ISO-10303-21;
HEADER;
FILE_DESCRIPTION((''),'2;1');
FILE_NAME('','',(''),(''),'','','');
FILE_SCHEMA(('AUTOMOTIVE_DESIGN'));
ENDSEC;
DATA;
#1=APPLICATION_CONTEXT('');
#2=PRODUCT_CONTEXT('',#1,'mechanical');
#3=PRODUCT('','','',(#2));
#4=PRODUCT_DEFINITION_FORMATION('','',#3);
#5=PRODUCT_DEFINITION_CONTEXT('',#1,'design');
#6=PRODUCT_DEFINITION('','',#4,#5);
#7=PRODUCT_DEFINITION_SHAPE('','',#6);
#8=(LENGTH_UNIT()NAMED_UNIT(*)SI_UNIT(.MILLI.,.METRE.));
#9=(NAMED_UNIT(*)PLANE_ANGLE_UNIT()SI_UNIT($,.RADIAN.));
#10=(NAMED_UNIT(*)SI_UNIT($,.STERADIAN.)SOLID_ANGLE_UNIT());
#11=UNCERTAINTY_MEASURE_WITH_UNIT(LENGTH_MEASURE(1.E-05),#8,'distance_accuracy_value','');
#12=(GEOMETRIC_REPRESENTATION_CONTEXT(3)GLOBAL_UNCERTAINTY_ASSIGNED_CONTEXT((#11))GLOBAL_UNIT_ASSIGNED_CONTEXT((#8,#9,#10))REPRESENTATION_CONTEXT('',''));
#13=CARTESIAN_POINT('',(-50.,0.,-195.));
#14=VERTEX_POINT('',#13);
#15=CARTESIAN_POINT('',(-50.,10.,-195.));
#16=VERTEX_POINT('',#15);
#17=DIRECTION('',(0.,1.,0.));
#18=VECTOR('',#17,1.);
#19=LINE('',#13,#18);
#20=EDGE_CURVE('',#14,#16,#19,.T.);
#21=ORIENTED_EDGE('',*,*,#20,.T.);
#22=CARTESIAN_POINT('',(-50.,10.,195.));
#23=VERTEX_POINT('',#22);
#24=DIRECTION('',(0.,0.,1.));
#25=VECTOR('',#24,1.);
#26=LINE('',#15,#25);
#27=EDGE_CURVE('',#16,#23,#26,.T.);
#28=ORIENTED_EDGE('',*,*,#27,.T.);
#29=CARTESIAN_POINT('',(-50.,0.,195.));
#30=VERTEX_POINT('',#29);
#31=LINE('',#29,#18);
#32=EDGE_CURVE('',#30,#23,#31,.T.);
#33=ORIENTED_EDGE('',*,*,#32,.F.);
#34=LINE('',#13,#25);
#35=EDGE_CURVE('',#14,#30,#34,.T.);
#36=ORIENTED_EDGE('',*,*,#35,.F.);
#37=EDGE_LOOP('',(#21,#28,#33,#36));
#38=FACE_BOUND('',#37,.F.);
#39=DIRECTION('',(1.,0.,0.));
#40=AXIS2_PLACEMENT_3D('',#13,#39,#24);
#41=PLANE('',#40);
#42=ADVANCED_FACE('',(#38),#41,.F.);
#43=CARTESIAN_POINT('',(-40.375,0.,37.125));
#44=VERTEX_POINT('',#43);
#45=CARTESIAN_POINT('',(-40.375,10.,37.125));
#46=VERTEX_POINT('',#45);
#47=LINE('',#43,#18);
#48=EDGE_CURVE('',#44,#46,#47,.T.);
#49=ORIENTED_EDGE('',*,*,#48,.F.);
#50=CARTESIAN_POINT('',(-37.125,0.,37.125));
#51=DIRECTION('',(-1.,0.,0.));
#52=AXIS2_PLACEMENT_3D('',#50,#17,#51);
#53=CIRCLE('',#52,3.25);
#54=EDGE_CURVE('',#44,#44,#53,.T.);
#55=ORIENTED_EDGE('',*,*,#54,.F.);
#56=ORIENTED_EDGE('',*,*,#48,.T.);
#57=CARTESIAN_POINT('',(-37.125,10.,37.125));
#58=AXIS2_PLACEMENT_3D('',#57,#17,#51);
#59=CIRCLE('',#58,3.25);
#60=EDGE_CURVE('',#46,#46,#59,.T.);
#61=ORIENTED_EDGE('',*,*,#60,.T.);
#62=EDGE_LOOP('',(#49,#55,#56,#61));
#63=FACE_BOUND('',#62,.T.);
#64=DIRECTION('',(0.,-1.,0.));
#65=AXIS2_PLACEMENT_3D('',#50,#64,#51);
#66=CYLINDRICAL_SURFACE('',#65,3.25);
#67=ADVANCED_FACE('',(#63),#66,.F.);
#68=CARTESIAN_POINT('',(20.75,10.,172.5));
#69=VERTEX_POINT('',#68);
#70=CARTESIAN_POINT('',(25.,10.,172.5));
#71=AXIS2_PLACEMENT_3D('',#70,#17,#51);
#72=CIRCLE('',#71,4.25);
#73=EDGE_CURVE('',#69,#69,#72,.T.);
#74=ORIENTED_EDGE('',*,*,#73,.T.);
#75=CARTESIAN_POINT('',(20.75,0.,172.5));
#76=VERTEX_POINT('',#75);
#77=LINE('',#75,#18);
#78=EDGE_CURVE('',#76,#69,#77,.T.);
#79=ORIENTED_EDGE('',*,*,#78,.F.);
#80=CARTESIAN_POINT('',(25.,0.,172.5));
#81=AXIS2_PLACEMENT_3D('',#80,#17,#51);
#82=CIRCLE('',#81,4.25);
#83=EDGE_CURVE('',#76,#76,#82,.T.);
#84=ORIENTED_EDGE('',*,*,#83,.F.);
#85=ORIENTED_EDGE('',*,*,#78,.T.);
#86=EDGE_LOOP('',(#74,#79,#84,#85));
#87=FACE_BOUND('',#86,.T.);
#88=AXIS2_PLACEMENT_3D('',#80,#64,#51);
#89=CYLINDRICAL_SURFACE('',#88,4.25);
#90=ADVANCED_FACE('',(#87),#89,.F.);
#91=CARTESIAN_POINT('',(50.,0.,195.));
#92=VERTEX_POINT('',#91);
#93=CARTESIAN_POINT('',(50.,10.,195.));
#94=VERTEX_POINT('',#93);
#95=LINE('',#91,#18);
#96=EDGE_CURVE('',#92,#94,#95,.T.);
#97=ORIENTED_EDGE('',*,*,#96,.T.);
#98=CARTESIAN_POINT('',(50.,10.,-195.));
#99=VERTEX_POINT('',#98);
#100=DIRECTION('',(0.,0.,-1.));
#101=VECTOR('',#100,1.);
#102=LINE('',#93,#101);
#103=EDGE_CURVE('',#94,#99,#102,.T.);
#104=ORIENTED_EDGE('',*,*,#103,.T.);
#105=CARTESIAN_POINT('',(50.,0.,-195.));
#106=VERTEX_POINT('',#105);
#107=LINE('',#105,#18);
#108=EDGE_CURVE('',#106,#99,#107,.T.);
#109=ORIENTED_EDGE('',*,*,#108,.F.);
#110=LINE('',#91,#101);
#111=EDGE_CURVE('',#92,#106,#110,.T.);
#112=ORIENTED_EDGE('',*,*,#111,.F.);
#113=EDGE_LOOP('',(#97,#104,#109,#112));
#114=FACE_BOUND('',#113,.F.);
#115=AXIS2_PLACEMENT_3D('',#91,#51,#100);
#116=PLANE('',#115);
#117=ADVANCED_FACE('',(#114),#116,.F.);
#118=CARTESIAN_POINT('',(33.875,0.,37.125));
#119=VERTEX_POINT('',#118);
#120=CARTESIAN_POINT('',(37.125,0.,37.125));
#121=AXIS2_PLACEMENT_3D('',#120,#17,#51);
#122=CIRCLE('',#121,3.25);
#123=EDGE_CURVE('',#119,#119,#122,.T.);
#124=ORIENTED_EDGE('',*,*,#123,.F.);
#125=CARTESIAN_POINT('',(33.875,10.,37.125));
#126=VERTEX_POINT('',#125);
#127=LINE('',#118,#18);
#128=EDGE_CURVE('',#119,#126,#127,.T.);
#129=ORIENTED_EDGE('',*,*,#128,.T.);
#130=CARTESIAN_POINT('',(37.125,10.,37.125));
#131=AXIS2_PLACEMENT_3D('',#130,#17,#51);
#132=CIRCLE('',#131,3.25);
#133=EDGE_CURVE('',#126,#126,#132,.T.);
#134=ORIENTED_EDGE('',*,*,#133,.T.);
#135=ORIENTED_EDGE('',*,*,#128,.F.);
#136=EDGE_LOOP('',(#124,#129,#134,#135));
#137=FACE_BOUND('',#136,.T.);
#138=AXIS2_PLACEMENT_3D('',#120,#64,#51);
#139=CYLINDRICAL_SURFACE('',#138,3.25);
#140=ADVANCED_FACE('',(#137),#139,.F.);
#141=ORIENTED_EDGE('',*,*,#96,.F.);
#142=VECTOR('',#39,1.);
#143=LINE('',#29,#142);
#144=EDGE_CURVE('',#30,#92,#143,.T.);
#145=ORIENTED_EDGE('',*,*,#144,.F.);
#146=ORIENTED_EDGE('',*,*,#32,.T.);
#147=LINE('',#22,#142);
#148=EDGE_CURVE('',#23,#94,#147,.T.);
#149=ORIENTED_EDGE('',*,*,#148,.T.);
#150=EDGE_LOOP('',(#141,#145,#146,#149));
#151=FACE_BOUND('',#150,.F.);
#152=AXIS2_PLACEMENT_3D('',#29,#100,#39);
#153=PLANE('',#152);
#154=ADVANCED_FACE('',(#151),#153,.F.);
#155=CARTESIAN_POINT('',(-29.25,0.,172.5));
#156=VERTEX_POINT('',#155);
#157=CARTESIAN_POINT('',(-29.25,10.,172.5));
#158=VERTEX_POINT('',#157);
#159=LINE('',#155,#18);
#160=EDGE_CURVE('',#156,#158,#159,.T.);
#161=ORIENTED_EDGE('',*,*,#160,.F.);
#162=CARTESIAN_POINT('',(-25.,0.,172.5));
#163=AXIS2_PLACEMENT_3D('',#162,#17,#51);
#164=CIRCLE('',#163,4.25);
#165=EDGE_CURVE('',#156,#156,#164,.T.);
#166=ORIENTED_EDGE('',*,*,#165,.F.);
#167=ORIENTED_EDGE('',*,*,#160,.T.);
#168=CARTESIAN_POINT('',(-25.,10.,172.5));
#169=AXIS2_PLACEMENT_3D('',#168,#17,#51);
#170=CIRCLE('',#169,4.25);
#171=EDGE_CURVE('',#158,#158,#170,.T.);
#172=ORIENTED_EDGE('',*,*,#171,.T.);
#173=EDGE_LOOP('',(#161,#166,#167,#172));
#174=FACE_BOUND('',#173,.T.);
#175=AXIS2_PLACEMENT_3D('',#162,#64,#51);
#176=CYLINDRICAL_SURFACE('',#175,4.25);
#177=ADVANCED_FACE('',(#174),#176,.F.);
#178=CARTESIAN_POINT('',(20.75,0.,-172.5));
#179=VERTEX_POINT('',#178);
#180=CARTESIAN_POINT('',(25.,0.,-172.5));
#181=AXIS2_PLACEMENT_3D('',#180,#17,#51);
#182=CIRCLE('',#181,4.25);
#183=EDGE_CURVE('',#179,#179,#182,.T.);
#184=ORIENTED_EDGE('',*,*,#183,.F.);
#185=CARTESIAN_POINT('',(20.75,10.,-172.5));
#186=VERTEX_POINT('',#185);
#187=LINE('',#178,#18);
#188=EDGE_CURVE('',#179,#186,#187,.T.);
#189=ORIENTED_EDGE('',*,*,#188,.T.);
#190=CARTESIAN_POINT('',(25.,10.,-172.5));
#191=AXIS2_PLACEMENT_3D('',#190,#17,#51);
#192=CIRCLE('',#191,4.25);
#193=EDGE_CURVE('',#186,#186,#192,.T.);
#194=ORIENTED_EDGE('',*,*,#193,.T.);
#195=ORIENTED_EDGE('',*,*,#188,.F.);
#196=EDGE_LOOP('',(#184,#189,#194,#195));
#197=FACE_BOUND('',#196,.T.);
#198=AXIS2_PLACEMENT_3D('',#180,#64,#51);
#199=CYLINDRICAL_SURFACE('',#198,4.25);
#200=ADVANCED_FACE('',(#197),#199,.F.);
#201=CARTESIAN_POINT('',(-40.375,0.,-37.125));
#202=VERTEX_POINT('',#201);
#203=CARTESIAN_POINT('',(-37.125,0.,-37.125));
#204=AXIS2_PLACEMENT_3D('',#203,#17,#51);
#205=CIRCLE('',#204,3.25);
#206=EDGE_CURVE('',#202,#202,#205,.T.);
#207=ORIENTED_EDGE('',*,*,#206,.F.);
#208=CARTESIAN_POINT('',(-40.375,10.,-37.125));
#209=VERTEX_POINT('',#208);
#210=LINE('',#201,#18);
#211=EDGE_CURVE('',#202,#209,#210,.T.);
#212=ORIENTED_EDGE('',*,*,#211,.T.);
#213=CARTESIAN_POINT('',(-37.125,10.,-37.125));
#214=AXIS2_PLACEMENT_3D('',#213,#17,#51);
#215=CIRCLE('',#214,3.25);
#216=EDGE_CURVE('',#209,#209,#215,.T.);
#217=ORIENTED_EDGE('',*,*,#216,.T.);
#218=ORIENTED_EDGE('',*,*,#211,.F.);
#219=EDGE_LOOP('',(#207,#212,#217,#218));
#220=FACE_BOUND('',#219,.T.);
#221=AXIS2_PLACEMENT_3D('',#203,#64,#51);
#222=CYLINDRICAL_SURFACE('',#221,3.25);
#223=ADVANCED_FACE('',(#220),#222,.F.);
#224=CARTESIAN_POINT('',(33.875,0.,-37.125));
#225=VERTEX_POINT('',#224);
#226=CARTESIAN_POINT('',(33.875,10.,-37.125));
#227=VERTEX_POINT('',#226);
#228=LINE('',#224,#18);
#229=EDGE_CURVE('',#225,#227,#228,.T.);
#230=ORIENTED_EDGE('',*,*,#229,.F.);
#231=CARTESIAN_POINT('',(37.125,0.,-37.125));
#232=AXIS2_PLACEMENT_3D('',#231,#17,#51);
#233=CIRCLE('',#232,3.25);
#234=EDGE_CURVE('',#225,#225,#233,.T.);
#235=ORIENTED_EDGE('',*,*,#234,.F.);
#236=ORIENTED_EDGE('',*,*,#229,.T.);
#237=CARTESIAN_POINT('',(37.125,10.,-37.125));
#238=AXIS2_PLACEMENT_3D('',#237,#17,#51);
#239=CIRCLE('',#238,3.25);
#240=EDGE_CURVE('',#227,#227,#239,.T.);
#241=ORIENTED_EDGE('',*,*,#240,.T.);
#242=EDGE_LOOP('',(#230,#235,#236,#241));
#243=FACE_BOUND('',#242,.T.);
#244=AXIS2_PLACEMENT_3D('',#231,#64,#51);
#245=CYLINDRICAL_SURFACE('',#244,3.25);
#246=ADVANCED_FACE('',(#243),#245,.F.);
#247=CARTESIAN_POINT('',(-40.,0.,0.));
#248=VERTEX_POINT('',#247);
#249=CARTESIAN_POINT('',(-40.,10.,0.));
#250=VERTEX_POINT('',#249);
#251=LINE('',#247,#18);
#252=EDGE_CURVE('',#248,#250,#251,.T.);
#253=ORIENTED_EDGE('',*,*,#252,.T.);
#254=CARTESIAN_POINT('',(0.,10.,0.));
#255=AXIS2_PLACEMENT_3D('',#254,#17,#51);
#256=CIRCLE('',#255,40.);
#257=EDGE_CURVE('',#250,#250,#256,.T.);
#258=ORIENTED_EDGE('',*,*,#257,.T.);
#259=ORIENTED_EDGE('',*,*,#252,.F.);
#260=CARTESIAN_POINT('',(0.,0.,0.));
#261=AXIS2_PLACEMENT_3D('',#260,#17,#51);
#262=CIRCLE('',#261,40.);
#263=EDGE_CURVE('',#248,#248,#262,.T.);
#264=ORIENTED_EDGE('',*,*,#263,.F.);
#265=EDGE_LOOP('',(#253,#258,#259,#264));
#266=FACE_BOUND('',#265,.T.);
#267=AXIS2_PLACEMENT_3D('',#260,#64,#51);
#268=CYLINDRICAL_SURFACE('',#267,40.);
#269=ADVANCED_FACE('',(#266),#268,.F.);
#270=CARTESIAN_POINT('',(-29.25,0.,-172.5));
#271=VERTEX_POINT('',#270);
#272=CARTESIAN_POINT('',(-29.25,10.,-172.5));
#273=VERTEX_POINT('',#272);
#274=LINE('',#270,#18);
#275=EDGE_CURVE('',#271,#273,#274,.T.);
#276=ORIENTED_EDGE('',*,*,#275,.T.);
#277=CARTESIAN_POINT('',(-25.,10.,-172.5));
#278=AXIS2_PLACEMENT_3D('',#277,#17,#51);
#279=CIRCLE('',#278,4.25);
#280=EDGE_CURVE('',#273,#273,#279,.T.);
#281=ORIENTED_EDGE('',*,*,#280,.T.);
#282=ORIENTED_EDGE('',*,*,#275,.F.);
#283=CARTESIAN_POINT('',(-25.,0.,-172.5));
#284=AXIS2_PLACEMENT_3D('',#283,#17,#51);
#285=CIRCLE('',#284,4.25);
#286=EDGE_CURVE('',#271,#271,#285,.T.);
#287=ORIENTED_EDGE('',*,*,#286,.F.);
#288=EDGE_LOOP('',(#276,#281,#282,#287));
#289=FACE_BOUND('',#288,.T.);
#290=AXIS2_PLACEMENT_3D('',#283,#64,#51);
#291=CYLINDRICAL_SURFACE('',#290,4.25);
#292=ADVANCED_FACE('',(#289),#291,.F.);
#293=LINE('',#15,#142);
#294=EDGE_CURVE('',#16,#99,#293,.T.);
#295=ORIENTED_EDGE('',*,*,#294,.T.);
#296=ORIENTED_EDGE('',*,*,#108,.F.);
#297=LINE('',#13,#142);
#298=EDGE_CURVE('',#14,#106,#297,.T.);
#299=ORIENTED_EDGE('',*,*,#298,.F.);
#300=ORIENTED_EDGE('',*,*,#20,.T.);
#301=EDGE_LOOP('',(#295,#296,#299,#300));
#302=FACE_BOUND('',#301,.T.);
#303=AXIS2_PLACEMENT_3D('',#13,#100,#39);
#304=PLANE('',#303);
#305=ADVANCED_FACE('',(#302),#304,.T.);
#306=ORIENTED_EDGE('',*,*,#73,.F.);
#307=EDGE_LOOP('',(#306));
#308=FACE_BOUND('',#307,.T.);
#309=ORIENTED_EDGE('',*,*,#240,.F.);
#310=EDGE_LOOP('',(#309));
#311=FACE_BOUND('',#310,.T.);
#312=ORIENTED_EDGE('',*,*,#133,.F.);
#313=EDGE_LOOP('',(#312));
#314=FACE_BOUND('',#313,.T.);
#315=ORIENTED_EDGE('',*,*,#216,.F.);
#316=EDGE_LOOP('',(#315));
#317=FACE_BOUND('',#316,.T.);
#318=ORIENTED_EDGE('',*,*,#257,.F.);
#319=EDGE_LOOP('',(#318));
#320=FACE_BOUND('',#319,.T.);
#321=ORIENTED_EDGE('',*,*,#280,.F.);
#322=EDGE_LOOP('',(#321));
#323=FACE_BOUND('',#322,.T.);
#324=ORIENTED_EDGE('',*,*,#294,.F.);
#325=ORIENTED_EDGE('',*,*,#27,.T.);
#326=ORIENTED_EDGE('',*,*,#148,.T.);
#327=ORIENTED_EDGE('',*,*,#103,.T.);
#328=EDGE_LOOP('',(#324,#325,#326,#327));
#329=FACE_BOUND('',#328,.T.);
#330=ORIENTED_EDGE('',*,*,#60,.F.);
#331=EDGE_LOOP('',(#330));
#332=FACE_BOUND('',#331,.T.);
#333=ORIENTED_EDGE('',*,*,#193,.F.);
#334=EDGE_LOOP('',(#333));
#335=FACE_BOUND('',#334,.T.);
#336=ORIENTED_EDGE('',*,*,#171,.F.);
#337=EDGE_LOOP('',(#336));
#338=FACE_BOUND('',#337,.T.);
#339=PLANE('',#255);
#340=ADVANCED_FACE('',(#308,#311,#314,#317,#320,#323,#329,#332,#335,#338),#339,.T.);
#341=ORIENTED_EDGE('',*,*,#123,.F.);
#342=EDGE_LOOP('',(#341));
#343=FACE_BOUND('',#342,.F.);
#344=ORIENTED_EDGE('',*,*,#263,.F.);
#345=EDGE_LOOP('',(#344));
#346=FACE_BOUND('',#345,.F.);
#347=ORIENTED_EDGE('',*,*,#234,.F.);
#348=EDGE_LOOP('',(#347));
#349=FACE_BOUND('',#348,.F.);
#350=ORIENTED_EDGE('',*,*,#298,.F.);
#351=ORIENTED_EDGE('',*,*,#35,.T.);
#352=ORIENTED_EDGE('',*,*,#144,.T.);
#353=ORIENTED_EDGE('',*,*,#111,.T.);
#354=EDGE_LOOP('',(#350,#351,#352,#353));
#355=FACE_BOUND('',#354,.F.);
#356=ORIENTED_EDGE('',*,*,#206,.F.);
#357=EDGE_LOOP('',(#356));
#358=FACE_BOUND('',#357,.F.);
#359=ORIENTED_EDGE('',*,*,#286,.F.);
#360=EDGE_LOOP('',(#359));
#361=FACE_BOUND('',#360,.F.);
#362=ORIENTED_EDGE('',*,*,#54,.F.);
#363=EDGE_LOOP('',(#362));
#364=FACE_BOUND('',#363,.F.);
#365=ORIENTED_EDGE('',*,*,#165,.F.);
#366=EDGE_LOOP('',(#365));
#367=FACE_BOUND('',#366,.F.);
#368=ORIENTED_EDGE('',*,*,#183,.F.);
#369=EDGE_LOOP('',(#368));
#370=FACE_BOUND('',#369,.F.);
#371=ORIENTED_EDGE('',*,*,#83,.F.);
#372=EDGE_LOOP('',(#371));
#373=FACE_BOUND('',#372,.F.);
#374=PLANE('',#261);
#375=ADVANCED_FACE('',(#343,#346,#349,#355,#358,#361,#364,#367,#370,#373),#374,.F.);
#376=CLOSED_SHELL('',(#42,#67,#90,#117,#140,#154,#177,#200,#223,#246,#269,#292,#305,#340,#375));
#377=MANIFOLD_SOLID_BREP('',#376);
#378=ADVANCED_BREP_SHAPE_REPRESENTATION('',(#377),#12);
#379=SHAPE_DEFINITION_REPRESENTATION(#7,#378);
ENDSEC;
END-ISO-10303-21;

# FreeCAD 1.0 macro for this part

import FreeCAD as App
import Part
import Sketcher
Q = App.Units.Quantity


def add_polygon(sketch, points):
    """Adds a closed chain of lines whose ends are joined by coincident constraints."""
    first, n = sketch.GeometryCount, len(points)
    for a, b in zip(points, points[1:] + points[:1]):
        sketch.addGeometry(Part.LineSegment(App.Vector(*a, 0), App.Vector(*b, 0)), False)
    for i in range(n):
        sketch.addConstraint(Sketcher.Constraint("Coincident", first + i, 2, first + (i + 1) % n, 1))

doc = App.newDocument("Part")
body = doc.addObject("PartDesign::Body", "Body")

sketch1 = body.newObject("Sketcher::SketchObject", "Sketch")
sketch1.AttachmentSupport = (doc.getObject("XZ_Plane"), [""])
sketch1.MapMode = "FlatFace"
add_polygon(sketch1, [(-50, 195), (50, 195), (50, -195), (-50, -195)])
sketch1.addGeometry(Part.Circle(App.Vector(25, -172.5, 0), App.Vector(0, 0, 1), 4.2), False)
sketch1.addGeometry(Part.Circle(App.Vector(37.1, -37.1, 0), App.Vector(0, 0, 1), 3.2), False)
sketch1.addGeometry(Part.Circle(App.Vector(-25, -172.5, 0), App.Vector(0, 0, 1), 4.2), False)
sketch1.addGeometry(Part.Circle(App.Vector(-37.1, -37.1, 0), App.Vector(0, 0, 1), 3.2), False)
sketch1.addGeometry(Part.Circle(App.Vector(37.1, 37.1, 0), App.Vector(0, 0, 1), 3.2), False)
sketch1.addGeometry(Part.Circle(App.Vector(25, 172.5, 0), App.Vector(0, 0, 1), 4.2), False)
sketch1.addGeometry(Part.Circle(App.Vector(0, 0, 0), App.Vector(0, 0, 1), 40), False)
sketch1.addGeometry(Part.Circle(App.Vector(-37.1, 37.1, 0), App.Vector(0, 0, 1), 3.2), False)
sketch1.addGeometry(Part.Circle(App.Vector(-25, 172.5, 0), App.Vector(0, 0, 1), 4.2), False)
sketch1.addConstraint([
    Sketcher.Constraint("Horizontal", 0),
    Sketcher.Constraint("Vertical", 1),
    Sketcher.Constraint("Horizontal", 2),
    Sketcher.Constraint("Vertical", 3),
    Sketcher.Constraint("Coincident", 10, 3, -1, 1),
    Sketcher.Constraint("Equal", 4, 6),
    Sketcher.Constraint("Equal", 5, 7),
    Sketcher.Constraint("Equal", 7, 8),
    Sketcher.Constraint("Equal", 6, 9),
    Sketcher.Constraint("Equal", 8, 11),
    Sketcher.Constraint("Equal", 9, 12),
    Sketcher.Constraint("Symmetric", 7, 3, 8, 3, -1, 1),
    Sketcher.Constraint("Symmetric", 6, 3, 9, 3, -1, 1),
    Sketcher.Constraint("Symmetric", 5, 3, 11, 3, -1, 1),
    Sketcher.Constraint("Symmetric", 4, 3, 12, 3, -1, 1),
    Sketcher.Constraint("Symmetric", 0, 2, 2, 2, -1, 1),
    Sketcher.Constraint("Symmetric", 4, 3, 6, 3, -2),
    Sketcher.Constraint("Symmetric", 5, 3, 7, 3, -2),
    Sketcher.Constraint("Diameter", 10, Q("80 mm")),
    Sketcher.Constraint("Diameter", 4, Q("8.5 mm")),
    Sketcher.Constraint("Diameter", 5, Q("6.5 mm")),
    Sketcher.Constraint("DistanceX", 0, 1, 0, 2, Q("100 mm")),
    Sketcher.Constraint("DistanceY", 1, 2, 1, 1, Q("390 mm")),
    Sketcher.Constraint("DistanceX", -1, 1, 4, 3, Q("25 mm")),
    Sketcher.Constraint("DistanceY", 9, 3, 0, 2, Q("22.5 mm")),
    Sketcher.Constraint("DistanceX", 7, 3, 5, 3, Q("74.25 mm")),
    Sketcher.Constraint("DistanceY", 5, 3, 8, 3, Q("74.25 mm")),
])
pad1 = body.newObject("PartDesign::Pad", "Pad")
pad1.Profile = sketch1
pad1.Length = 10
pad1.Reversed = True

doc.recompute()
